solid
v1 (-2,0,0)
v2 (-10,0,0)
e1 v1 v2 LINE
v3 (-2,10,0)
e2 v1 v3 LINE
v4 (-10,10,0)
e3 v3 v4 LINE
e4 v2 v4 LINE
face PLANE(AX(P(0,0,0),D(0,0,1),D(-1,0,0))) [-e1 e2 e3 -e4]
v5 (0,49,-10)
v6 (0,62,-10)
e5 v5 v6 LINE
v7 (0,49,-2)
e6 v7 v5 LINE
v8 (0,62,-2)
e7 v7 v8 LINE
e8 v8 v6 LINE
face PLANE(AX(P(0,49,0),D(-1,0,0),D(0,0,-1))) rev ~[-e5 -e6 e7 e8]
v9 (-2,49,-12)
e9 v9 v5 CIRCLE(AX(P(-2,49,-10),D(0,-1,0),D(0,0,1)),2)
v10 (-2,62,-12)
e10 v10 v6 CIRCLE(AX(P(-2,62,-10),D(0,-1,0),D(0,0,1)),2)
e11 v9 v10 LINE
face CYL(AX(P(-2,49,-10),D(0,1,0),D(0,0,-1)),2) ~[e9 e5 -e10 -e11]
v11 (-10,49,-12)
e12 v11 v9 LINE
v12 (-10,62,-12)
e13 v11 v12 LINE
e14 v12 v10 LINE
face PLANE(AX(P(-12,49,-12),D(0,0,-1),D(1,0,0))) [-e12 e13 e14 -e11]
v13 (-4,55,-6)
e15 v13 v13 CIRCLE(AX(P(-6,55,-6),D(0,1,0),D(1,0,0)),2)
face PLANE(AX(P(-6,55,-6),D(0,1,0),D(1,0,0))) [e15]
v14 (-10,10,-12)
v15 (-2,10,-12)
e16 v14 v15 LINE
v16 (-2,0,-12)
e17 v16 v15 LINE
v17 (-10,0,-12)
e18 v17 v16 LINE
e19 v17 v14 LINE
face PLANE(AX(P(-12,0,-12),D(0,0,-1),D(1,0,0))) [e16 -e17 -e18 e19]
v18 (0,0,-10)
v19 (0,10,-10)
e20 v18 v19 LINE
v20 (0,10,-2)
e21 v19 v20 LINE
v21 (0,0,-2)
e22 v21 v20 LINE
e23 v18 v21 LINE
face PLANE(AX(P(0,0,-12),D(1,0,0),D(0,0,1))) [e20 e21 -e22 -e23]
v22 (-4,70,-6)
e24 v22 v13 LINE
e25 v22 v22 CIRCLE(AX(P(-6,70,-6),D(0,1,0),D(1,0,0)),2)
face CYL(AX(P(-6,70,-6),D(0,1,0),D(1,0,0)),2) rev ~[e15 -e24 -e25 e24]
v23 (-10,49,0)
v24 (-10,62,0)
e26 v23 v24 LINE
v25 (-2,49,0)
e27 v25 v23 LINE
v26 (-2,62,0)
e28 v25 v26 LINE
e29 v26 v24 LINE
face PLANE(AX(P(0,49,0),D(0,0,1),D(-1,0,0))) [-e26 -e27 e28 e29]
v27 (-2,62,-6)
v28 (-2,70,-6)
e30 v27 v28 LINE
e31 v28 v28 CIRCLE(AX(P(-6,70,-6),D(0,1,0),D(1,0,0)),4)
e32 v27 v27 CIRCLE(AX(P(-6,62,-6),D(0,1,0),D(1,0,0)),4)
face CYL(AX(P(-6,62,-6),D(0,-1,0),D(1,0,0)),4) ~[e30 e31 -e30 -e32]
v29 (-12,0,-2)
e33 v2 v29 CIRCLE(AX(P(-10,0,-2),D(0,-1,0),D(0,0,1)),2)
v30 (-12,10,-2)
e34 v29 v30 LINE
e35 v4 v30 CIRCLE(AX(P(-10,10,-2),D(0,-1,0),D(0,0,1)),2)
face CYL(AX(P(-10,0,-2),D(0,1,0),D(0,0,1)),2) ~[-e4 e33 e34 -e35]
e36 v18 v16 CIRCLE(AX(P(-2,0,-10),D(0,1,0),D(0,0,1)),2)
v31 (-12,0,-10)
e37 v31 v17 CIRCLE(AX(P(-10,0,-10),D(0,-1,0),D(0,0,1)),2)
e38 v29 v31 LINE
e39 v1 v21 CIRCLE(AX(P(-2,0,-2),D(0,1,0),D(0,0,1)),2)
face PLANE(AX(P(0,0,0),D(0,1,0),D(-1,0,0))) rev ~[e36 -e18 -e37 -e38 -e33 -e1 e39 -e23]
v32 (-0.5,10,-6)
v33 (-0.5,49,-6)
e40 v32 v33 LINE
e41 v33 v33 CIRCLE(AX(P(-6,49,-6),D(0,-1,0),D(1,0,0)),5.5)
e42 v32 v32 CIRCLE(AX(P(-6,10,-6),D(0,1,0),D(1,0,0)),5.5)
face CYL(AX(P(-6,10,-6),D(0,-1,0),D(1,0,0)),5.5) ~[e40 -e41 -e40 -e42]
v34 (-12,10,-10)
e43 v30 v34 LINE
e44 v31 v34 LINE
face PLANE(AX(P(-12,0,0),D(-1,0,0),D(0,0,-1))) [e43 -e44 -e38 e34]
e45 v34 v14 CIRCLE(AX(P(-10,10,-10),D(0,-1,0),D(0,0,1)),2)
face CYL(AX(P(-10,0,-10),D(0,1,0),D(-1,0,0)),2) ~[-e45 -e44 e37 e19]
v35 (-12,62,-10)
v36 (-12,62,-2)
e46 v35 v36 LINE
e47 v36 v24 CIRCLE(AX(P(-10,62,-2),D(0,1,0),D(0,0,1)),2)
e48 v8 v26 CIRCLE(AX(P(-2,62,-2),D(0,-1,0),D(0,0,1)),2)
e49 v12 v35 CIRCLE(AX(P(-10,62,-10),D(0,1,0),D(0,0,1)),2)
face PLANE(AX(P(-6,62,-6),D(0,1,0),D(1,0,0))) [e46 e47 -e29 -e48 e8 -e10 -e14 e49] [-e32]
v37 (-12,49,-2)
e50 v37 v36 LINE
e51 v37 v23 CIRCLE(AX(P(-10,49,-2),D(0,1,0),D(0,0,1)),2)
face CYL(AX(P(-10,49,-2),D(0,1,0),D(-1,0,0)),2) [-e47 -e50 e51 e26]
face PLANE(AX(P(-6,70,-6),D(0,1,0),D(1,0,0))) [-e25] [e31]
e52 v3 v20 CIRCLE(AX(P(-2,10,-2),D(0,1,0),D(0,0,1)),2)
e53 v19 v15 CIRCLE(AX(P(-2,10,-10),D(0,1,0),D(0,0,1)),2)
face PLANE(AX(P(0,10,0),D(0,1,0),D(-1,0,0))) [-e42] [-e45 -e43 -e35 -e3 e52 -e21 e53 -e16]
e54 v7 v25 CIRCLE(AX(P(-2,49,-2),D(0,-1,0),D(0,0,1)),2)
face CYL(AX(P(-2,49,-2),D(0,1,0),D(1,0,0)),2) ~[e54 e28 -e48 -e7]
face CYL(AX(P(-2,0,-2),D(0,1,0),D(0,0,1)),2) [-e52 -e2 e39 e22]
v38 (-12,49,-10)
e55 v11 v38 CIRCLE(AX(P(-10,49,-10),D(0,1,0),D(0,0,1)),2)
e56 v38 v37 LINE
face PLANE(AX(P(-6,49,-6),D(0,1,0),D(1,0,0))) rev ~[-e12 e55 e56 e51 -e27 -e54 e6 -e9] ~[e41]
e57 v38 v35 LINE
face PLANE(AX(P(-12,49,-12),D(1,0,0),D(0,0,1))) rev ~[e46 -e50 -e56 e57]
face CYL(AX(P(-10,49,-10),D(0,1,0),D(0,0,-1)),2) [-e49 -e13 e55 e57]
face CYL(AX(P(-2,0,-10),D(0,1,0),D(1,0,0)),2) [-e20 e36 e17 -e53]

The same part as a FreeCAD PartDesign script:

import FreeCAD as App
import Part
import Sketcher

V = App.Vector
Q = App.Units.Quantity


def edges_at(feature, points):
    """Names of the edges that pass closest to the given points."""
    edges = feature.Shape.Edges
    near = lambda p: min(range(len(edges)), key=lambda i: edges[i].distToShape(Part.Vertex(*p))[0])
    return sorted({f"Edge{near(p) + 1}" for p in points})

doc = App.newDocument("Part")
params = doc.addObject("Spreadsheet::Sheet", "Params")
for row, (alias, value) in enumerate([
    ("sketch1_width", "12 mm"),
    ("pad1_length", "10 mm"),
    ("sketch2_diameter", "11 mm"),
    ("pad2_length", "39 mm"),
    ("sketch3_width", "12 mm"),
    ("pad3_length", "13 mm"),
    ("fillet_radius", "2 mm"),
    ("sketch4_diameter", "8 mm"),
    ("pad4_length", "8 mm"),
    ("sketch5_diameter", "4 mm"),
    ("pocket1_length", "15 mm"),
], start=1):
    params.set(f"A{row}", alias)
    params.set(f"B{row}", "=" + value)
    params.setAlias(f"B{row}", alias)

body = doc.addObject("PartDesign::Body", "Body")

# Sketch on XZ plane
sketch1 = doc.addObject("Sketcher::SketchObject", "Sketch")
body.addObject(sketch1)
sketch1.AttachmentSupport = (doc.XZ_Plane, [""])
sketch1.MapMode = "FlatFace"
sketch1.addGeometry([
    Part.LineSegment(V(-12, 0, 0), V(0, 0, 0)),
    Part.LineSegment(V(0, 0, 0), V(0, -12, 0)),
    Part.LineSegment(V(0, -12, 0), V(-12, -12, 0)),
    Part.LineSegment(V(-12, -12, 0), V(-12, 0, 0)),
], False)
sketch1.addConstraint([
    Sketcher.Constraint("Coincident", 0, 2, 1, 1),
    Sketcher.Constraint("Coincident", 1, 2, 2, 1),
    Sketcher.Constraint("Coincident", 2, 2, 3, 1),
    Sketcher.Constraint("Coincident", 3, 2, 0, 1),
    Sketcher.Constraint("Horizontal", 0),
    Sketcher.Constraint("Vertical", 1),
    Sketcher.Constraint("Horizontal", 2),
    Sketcher.Constraint("Vertical", 3),
    Sketcher.Constraint("Coincident", 0, 2, -1, 1),
    Sketcher.Constraint("Equal", 2, 1),
    Sketcher.Constraint("DistanceX", 0, 1, 0, 2, Q("12 mm")),
])
sketch1.setExpression("Constraints[10]", "Params.sketch1_width")
pad1 = doc.addObject("PartDesign::Pad", "Pad")
body.addObject(pad1)
pad1.Profile = sketch1
pad1.setExpression("Length", "Params.pad1_length")
pad1.Reversed = True

# Sketch on XZ plane
sketch2 = doc.addObject("Sketcher::SketchObject", "Sketch001")
body.addObject(sketch2)
sketch2.AttachmentSupport = (doc.XZ_Plane, [""])
sketch2.MapMode = "FlatFace"
sketch2.AttachmentOffset = App.Placement(V(0, 0, -10), App.Rotation())
sketch2.addGeometry(Part.Circle(V(-6, -6, 0), V(0, 0, 1), 6), False)
sketch2.addConstraint([
    Sketcher.Constraint("Diameter", 0, Q("11 mm")),
    Sketcher.Constraint("DistanceX", 0, 3, -1, 1, Q("6 mm")),
    Sketcher.Constraint("DistanceY", 0, 3, -1, 1, Q("6 mm")),
])
sketch2.setExpression("Constraints[0]", "Params.sketch2_diameter")
pad2 = doc.addObject("PartDesign::Pad", "Pad001")
body.addObject(pad2)
pad2.Profile = sketch2
pad2.setExpression("Length", "Params.pad2_length")
pad2.Reversed = True

# Sketch on XZ plane
sketch3 = doc.addObject("Sketcher::SketchObject", "Sketch002")
body.addObject(sketch3)
sketch3.AttachmentSupport = (doc.XZ_Plane, [""])
sketch3.MapMode = "FlatFace"
sketch3.AttachmentOffset = App.Placement(V(0, 0, -49), App.Rotation())
sketch3.addGeometry([
    Part.LineSegment(V(0, -12, 0), V(-12, -12, 0)),
    Part.LineSegment(V(-12, -12, 0), V(-12, 0, 0)),
    Part.LineSegment(V(-12, 0, 0), V(0, 0, 0)),
    Part.LineSegment(V(0, 0, 0), V(0, -12, 0)),
], False)
sketch3.addConstraint([
    Sketcher.Constraint("Coincident", 0, 2, 1, 1),
    Sketcher.Constraint("Coincident", 1, 2, 2, 1),
    Sketcher.Constraint("Coincident", 2, 2, 3, 1),
    Sketcher.Constraint("Coincident", 3, 2, 0, 1),
    Sketcher.Constraint("Horizontal", 0),
    Sketcher.Constraint("Vertical", 1),
    Sketcher.Constraint("Horizontal", 2),
    Sketcher.Constraint("Vertical", 3),
    Sketcher.Constraint("Coincident", 2, 2, -1, 1),
    Sketcher.Constraint("Equal", 2, 1),
    Sketcher.Constraint("DistanceX", 0, 2, 0, 1, Q("12 mm")),
])
sketch3.setExpression("Constraints[10]", "Params.sketch3_width")
pad3 = doc.addObject("PartDesign::Pad", "Pad002")
body.addObject(pad3)
pad3.Profile = sketch3
pad3.setExpression("Length", "Params.pad3_length")
pad3.Reversed = True
doc.recompute()

fillet = doc.addObject("PartDesign::Fillet", "Fillet")
body.addObject(fillet)
fillet.Base = (pad3, edges_at(pad3, [
    (0, 55.5, 0),
    (0, 5, 0),
    (0, 5, -12),
    (0, 55.5, -12),
    (-12, 55.5, 0),
    (-12, 5, 0),
    (-12, 5, -12),
    (-12, 55.5, -12),
]))
fillet.setExpression("Radius", "Params.fillet_radius")

# Sketch on XZ plane
sketch4 = doc.addObject("Sketcher::SketchObject", "Sketch003")
body.addObject(sketch4)
sketch4.AttachmentSupport = (doc.XZ_Plane, [""])
sketch4.MapMode = "FlatFace"
sketch4.AttachmentOffset = App.Placement(V(0, 0, -62), App.Rotation())
sketch4.addGeometry(Part.Circle(V(-6, -6, 0), V(0, 0, 1), 4), False)
sketch4.addConstraint([
    Sketcher.Constraint("Diameter", 0, Q("8 mm")),
    Sketcher.Constraint("DistanceX", 0, 3, -1, 1, Q("6 mm")),
    Sketcher.Constraint("DistanceY", 0, 3, -1, 1, Q("6 mm")),
])
sketch4.setExpression("Constraints[0]", "Params.sketch4_diameter")
pad4 = doc.addObject("PartDesign::Pad", "Pad003")
body.addObject(pad4)
pad4.Profile = sketch4
pad4.setExpression("Length", "Params.pad4_length")
pad4.Reversed = True

# Sketch on XZ plane
sketch5 = doc.addObject("Sketcher::SketchObject", "Sketch004")
body.addObject(sketch5)
sketch5.AttachmentSupport = (doc.XZ_Plane, [""])
sketch5.MapMode = "FlatFace"
sketch5.AttachmentOffset = App.Placement(V(0, 0, -70), App.Rotation())
sketch5.addGeometry(Part.Circle(V(-6, -6, 0), V(0, 0, 1), 2), False)
sketch5.addConstraint([
    Sketcher.Constraint("Diameter", 0, Q("4 mm")),
    Sketcher.Constraint("DistanceX", 0, 3, -1, 1, Q("6 mm")),
    Sketcher.Constraint("DistanceY", 0, 3, -1, 1, Q("6 mm")),
])
sketch5.setExpression("Constraints[0]", "Params.sketch5_diameter")
pocket1 = doc.addObject("PartDesign::Pocket", "Pocket")
body.addObject(pocket1)
pocket1.Profile = sketch5
pocket1.setExpression("Length", "Params.pocket1_length")
pocket1.Reversed = True

doc.recompute()
